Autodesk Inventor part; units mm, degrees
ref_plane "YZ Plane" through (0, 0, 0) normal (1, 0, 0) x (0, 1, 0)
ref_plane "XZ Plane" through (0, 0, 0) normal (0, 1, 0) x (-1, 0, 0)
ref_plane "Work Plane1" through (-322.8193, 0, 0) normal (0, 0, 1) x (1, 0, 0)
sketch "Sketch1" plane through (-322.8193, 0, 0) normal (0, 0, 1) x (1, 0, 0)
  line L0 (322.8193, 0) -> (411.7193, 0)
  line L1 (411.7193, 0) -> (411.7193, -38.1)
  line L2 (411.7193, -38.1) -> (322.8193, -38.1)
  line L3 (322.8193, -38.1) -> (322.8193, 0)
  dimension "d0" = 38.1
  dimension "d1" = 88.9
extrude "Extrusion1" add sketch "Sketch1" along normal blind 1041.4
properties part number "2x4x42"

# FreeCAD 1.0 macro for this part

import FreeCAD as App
import Part
import Sketcher
from FreeCAD import Vector
Q = App.Units.Quantity


def add_polygon(sketch, points):
    """Adds a closed chain of lines whose ends are joined by coincident constraints."""
    first, n = sketch.GeometryCount, len(points)
    for a, b in zip(points, points[1:] + points[:1]):
        sketch.addGeometry(Part.LineSegment(App.Vector(*a, 0), App.Vector(*b, 0)), False)
    for i in range(n):
        sketch.addConstraint(Sketcher.Constraint("Coincident", first + i, 2, first + (i + 1) % n, 1))

doc = App.newDocument("Part")
body = doc.addObject("PartDesign::Body", "Body")

sketch1 = doc.addObject("Sketcher::SketchObject", "Sketch")
body.addObject(sketch1)
sketch1.AttachmentSupport = (doc.XY_Plane, [""])
sketch1.MapMode = "FlatFace"
add_polygon(sketch1, [(89, 0), (0, 0), (0, -38), (89, -38)])
sketch1.addConstraint([
    Sketcher.Constraint("Horizontal", 0),
    Sketcher.Constraint("Vertical", 1),
    Sketcher.Constraint("Horizontal", 2),
    Sketcher.Constraint("Vertical", 3),
    Sketcher.Constraint("Coincident", 0, 2, -1, 1),
    Sketcher.Constraint("DistanceX", 0, 2, 0, 1, Q("3.5 in")),
    Sketcher.Constraint("DistanceY", 1, 2, 1, 1, Q("1.5 in")),
])
pad1 = doc.addObject("PartDesign::Pad", "Pad")
body.addObject(pad1)
pad1.Profile = sketch1
pad1.Length = Q("41 in")

doc.recompute()
